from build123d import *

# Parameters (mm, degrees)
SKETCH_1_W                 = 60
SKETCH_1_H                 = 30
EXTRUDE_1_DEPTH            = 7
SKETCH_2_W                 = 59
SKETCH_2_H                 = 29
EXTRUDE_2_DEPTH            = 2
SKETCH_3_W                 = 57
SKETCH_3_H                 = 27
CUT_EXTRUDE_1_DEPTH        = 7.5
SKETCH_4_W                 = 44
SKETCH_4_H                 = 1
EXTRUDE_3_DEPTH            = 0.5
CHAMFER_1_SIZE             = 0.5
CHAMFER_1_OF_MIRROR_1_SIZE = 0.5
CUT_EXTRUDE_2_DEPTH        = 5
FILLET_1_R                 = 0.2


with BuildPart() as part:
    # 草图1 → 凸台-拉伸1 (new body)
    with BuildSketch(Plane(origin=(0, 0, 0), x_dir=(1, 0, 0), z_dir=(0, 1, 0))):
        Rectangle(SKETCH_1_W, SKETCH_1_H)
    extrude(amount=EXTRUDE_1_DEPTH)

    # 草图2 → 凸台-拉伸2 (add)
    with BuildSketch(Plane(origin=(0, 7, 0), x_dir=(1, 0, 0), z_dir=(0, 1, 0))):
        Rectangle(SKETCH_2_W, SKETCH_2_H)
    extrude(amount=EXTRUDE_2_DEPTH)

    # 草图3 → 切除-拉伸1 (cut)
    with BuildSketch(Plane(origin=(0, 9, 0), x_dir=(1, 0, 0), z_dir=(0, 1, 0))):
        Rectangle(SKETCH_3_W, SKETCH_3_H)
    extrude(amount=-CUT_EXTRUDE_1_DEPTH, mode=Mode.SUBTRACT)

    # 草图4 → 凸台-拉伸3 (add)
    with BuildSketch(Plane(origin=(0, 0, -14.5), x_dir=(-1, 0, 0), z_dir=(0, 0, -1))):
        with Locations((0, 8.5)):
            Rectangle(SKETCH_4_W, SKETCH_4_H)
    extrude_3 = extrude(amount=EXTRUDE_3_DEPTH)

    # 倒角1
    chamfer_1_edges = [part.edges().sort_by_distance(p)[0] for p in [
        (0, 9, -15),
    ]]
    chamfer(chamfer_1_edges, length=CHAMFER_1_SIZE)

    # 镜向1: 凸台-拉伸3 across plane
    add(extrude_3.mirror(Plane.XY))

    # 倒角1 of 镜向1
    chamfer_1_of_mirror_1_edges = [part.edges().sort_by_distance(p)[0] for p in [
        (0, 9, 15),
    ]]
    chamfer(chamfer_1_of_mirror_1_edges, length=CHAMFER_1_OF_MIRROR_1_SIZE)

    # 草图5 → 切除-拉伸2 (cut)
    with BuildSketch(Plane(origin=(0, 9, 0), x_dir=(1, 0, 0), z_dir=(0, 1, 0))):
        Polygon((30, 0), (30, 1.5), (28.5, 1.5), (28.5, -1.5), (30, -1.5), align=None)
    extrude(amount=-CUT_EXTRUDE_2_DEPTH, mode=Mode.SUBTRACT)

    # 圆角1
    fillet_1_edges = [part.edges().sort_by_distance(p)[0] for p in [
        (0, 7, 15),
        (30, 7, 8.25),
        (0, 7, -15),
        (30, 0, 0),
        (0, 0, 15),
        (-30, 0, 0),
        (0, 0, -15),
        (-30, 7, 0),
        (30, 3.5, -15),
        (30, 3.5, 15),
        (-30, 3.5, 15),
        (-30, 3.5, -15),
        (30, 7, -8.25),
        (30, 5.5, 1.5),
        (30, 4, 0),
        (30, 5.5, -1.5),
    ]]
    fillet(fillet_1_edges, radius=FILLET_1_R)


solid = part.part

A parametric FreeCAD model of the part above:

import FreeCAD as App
import Part
import Sketcher
from FreeCAD import Vector


def edges_at(feature, points):
    """Names of the edges that pass closest to the given points."""
    edges = feature.Shape.Edges
    near = lambda p: min(range(len(edges)), key=lambda i: edges[i].distToShape(Part.Vertex(*p))[0])
    return sorted({f"Edge{near(p) + 1}" for p in points})


def add_polygon(sketch, points):
    """Adds a closed chain of lines whose ends are joined by coincident constraints."""
    first, n = sketch.GeometryCount, len(points)
    for a, b in zip(points, points[1:] + points[:1]):
        sketch.addGeometry(Part.LineSegment(App.Vector(*a, 0), App.Vector(*b, 0)), False)
    for i in range(n):
        sketch.addConstraint(Sketcher.Constraint("Coincident", first + i, 2, first + (i + 1) % n, 1))

doc = App.newDocument("Part")
body = doc.addObject("PartDesign::Body", "Body")

sketch1 = body.newObject("Sketcher::SketchObject", "Sketch")
sketch1.AttachmentSupport = (doc.getObject("XZ_Plane"), [""])
sketch1.MapMode = "FlatFace"
add_polygon(sketch1, [(-30, -15), (-30, 15), (30, 15), (30, -15)])
sketch1.addConstraint([
    Sketcher.Constraint("Vertical", 0),
    Sketcher.Constraint("Horizontal", 1),
    Sketcher.Constraint("Vertical", 2),
    Sketcher.Constraint("Horizontal", 3),
    Sketcher.Constraint("Symmetric", 0, 2, 2, 2, -1, 1),
    Sketcher.Constraint("DistanceX", 1, 1, 1, 2, 60.0),
    Sketcher.Constraint("DistanceY", 0, 1, 0, 2, 30.0),
])
pad1 = body.newObject("PartDesign::Pad", "Pad")
pad1.Profile = sketch1
pad1.Length = 7
pad1.Reversed = True

sketch2 = body.newObject("Sketcher::SketchObject", "Sketch001")
sketch2.AttachmentSupport = (doc.getObject("XZ_Plane"), [""])
sketch2.MapMode = "FlatFace"
sketch2.AttachmentOffset = App.Placement(Vector(0, 0, -7), App.Rotation())
add_polygon(sketch2, [(-30, -14), (-30, 14), (30, 14), (30, -14)])
sketch2.addConstraint([
    Sketcher.Constraint("Vertical", 0),
    Sketcher.Constraint("Horizontal", 1),
    Sketcher.Constraint("Vertical", 2),
    Sketcher.Constraint("Horizontal", 3),
    Sketcher.Constraint("Symmetric", 0, 2, 2, 2, -1, 1),
    Sketcher.Constraint("DistanceX", 1, 1, 1, 2, 59.0),
    Sketcher.Constraint("DistanceY", 0, 1, 0, 2, 29.0),
])
pad2 = body.newObject("PartDesign::Pad", "Pad001")
pad2.Profile = sketch2
pad2.Length = 2
pad2.Reversed = True

sketch3 = body.newObject("Sketcher::SketchObject", "Sketch002")
sketch3.AttachmentSupport = (doc.getObject("XZ_Plane"), [""])
sketch3.MapMode = "FlatFace"
sketch3.AttachmentOffset = App.Placement(Vector(0, 0, -9), App.Rotation())
add_polygon(sketch3, [(-28, -14), (-28, 14), (28, 14), (28, -14)])
sketch3.addConstraint([
    Sketcher.Constraint("Vertical", 0),
    Sketcher.Constraint("Horizontal", 1),
    Sketcher.Constraint("Vertical", 2),
    Sketcher.Constraint("Horizontal", 3),
    Sketcher.Constraint("Symmetric", 0, 2, 2, 2, -1, 1),
    Sketcher.Constraint("DistanceX", 1, 1, 1, 2, 57.0),
    Sketcher.Constraint("DistanceY", 0, 1, 0, 2, 27.0),
])
pocket1 = body.newObject("PartDesign::Pocket", "Pocket")
pocket1.Profile = sketch3
pocket1.Length = 7.5
pocket1.Reversed = True

sketch4 = body.newObject("Sketcher::SketchObject", "Sketch003")
sketch4.AttachmentSupport = (doc.getObject("XY_Plane"), [""])
sketch4.MapMode = "FlatFace"
sketch4.AttachmentOffset = App.Placement(Vector(0, 0, -14.5), App.Rotation())
add_polygon(sketch4, [(22, 9), (22, 8), (-22, 8), (-22, 9)])
sketch4.addConstraint([
    Sketcher.Constraint("Vertical", 0),
    Sketcher.Constraint("Horizontal", 1),
    Sketcher.Constraint("Vertical", 2),
    Sketcher.Constraint("Horizontal", 3),
    Sketcher.Constraint("DistanceX", 1, 2, 1, 1, 44.0),
    Sketcher.Constraint("DistanceY", 0, 2, 0, 1, 1.0),
    Sketcher.Constraint("DistanceX", -1, 1, 0, 2, 22.0),
    Sketcher.Constraint("DistanceY", -1, 1, 0, 2, 8.0),
])
pad3 = body.newObject("PartDesign::Pad", "Pad002")
pad3.Profile = sketch4
pad3.Length = 0.5
pad3.Reversed = True
doc.recompute()

chamfer = body.newObject("PartDesign::Chamfer", "Chamfer")
chamfer.Base = (pad3, edges_at(pad3, [(0, 9, -15)]))
chamfer.Size = 0.5
doc.recompute()

mirrored = body.newObject("PartDesign::Mirrored", "Mirrored")
mirrored.Originals = [pad3]
mirrored.MirrorPlane = (doc.getObject("XY_Plane"), [""])
body.Tip = mirrored
doc.recompute()

chamfer2 = body.newObject("PartDesign::Chamfer", "Chamfer001")
chamfer2.Base = (mirrored, edges_at(mirrored, [(0, 9, 15)]))
chamfer2.Size = 0.5

sketch5 = body.newObject("Sketcher::SketchObject", "Sketch004")
sketch5.AttachmentSupport = (doc.getObject("XZ_Plane"), [""])
sketch5.MapMode = "FlatFace"
sketch5.AttachmentOffset = App.Placement(Vector(0, 0, -9), App.Rotation())
add_polygon(sketch5, [(30, -1.5), (28.5, -1.5), (28.5, 1.5), (30, 1.5)])
sketch5.addConstraint([
    Sketcher.Constraint("Horizontal", 0),
    Sketcher.Constraint("Vertical", 1),
    Sketcher.Constraint("Horizontal", 2),
    Sketcher.Constraint("Vertical", 3),
    Sketcher.Constraint("DistanceY", 1, 1, 1, 2, 3.0),
    Sketcher.Constraint("DistanceX", 0, 2, 0, 1, 1.5),
    Sketcher.Constraint("DistanceX", -1, 1, 2, 2, 30.0),
    Sketcher.Constraint("DistanceY", 0, 2, -1, 1, 1.5),
])
pocket2 = body.newObject("PartDesign::Pocket", "Pocket001")
pocket2.Profile = sketch5
pocket2.Length = 5
pocket2.Reversed = True
doc.recompute()

fillet = body.newObject("PartDesign::Fillet", "Fillet")
fillet.Base = (pocket2, edges_at(pocket2, [
    (0, 7, 15),
    (30, 7, 8.25),
    (0, 7, -15),
    (30, 0, 0),
    (0, 0, 15),
    (-30, 0, 0),
    (0, 0, -15),
    (-30, 7, 0),
    (30, 3.5, -15),
    (30, 3.5, 15),
    (-30, 3.5, 15),
    (-30, 3.5, -15),
    (30, 7, -8.25),
    (30, 5.5, 1.5),
    (30, 4, 0),
    (30, 5.5, -1.5),
]))
fillet.Radius = 0.2

doc.recompute()
